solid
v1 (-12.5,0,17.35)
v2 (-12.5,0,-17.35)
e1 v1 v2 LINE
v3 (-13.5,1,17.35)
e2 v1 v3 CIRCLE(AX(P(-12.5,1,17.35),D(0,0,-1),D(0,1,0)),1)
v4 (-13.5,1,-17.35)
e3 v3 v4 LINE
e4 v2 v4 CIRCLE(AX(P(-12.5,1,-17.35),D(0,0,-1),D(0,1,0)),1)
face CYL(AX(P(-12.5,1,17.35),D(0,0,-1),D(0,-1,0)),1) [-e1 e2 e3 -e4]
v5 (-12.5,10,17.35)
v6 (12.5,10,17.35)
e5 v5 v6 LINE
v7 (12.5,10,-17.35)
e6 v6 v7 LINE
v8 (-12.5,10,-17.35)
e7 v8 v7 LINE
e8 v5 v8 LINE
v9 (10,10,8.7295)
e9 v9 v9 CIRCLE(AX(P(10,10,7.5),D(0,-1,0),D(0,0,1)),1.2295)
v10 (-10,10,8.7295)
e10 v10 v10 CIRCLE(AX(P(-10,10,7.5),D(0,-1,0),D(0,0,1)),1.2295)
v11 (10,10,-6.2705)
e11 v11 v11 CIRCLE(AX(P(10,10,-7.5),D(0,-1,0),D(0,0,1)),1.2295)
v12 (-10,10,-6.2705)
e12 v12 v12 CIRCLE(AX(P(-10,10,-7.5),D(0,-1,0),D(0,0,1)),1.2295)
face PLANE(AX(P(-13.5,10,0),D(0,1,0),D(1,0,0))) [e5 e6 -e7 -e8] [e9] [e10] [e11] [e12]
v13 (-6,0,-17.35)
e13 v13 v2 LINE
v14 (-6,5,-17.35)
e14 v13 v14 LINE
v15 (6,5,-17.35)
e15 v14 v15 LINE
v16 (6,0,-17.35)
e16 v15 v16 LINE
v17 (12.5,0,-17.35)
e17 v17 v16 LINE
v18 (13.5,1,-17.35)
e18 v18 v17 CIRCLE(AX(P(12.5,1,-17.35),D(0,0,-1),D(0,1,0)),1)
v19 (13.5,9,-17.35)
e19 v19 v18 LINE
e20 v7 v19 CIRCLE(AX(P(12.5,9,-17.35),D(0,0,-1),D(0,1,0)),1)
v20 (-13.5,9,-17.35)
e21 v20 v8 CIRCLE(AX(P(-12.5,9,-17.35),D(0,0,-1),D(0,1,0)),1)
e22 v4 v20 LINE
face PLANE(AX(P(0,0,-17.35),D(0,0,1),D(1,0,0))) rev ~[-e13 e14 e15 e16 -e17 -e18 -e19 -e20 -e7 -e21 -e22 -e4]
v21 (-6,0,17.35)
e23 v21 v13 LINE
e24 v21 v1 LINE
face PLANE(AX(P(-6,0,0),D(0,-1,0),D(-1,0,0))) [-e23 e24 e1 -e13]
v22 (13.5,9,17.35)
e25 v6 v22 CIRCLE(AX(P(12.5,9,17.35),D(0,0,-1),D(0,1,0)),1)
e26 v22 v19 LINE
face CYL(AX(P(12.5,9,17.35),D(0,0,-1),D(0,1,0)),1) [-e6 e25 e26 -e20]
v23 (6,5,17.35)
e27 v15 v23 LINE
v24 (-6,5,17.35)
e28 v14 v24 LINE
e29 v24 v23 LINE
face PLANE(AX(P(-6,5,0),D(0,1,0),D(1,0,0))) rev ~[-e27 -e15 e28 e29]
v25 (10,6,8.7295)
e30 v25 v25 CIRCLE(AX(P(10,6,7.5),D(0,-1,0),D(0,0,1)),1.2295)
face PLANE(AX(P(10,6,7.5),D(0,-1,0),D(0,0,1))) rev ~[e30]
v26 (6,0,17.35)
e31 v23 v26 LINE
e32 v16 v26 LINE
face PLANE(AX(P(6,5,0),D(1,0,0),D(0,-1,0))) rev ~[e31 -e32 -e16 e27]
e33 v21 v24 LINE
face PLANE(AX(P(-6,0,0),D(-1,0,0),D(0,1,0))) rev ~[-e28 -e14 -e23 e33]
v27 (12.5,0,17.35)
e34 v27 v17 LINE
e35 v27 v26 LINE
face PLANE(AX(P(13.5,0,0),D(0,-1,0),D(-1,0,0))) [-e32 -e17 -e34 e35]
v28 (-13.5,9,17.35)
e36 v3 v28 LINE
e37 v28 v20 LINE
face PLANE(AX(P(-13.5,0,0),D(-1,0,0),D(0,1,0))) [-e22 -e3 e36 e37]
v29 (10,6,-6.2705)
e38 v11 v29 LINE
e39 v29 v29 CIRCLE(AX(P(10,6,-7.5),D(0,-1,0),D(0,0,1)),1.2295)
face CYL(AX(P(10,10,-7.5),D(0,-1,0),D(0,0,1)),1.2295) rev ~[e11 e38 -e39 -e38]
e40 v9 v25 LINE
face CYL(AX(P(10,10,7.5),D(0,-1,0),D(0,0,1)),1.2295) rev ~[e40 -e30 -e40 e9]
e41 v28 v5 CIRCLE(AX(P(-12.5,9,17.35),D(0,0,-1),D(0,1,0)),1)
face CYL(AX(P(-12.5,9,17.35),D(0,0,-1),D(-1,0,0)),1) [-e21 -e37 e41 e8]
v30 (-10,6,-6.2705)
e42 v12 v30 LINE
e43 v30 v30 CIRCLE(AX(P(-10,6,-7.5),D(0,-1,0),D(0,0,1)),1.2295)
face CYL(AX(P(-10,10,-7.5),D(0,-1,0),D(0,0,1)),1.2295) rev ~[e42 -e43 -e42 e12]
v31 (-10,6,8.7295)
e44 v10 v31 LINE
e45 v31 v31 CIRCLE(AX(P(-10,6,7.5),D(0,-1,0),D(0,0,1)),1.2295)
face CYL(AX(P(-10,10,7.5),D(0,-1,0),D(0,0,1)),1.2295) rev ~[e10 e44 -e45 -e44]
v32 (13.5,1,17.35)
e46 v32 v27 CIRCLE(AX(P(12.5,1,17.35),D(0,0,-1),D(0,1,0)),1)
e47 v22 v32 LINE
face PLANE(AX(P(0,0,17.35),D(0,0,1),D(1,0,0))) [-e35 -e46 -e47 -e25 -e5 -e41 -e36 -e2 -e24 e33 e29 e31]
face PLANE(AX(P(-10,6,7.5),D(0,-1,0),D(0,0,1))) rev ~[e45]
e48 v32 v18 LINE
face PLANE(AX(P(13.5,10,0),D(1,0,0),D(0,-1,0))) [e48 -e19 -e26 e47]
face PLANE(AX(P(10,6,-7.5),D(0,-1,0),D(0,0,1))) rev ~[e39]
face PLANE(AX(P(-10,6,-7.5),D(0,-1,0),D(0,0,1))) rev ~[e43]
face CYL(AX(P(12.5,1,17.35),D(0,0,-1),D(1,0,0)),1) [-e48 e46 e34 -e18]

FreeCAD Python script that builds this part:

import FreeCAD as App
import Part
import Sketcher
from FreeCAD import Vector
Q = App.Units.Quantity


def edges_at(feature, points):
    """Names of the edges that pass closest to the given points."""
    edges = feature.Shape.Edges
    near = lambda p: min(range(len(edges)), key=lambda i: edges[i].distToShape(Part.Vertex(*p))[0])
    return sorted({f"Edge{near(p) + 1}" for p in points})


def add_polygon(sketch, points):
    """Adds a closed chain of lines whose ends are joined by coincident constraints."""
    first, n = sketch.GeometryCount, len(points)
    for a, b in zip(points, points[1:] + points[:1]):
        sketch.addGeometry(Part.LineSegment(App.Vector(*a, 0), App.Vector(*b, 0)), False)
    for i in range(n):
        sketch.addConstraint(Sketcher.Constraint("Coincident", first + i, 2, first + (i + 1) % n, 1))

doc = App.newDocument("Part")
body = doc.addObject("PartDesign::Body", "Body")

sketch1 = body.newObject("Sketcher::SketchObject", "Sketch")
sketch1.AttachmentSupport = (doc.getObject("XY_Plane"), [""])
sketch1.MapMode = "FlatFace"
add_polygon(sketch1, [(-6, 0), (-6, 5), (6, 5), (6, 0), (14, 0), (14, 10), (-14, 10), (-14, 0)])
sketch1.addConstraint(Sketcher.Constraint("Vertical", 0))
sketch1.addConstraint(Sketcher.Constraint("Horizontal", 1))
sketch1.addConstraint(Sketcher.Constraint("Vertical", 2))
sketch1.addConstraint(Sketcher.Constraint("Horizontal", 3))
sketch1.addConstraint(Sketcher.Constraint("Vertical", 4))
sketch1.addConstraint(Sketcher.Constraint("Horizontal", 5))
sketch1.addConstraint(Sketcher.Constraint("Vertical", 6))
sketch1.addConstraint(Sketcher.Constraint("Horizontal", 7))
sketch1.addConstraint(Sketcher.Constraint("Symmetric", 3, 2, 6, 2, -1, 1))
sketch1.addConstraint(Sketcher.Constraint("Symmetric", 2, 2, 7, 2, -2))
sketch1.addConstraint(Sketcher.Constraint("DistanceX", 1, 1, 1, 2, Q("12 mm")))
sketch1.addConstraint(Sketcher.Constraint("DistanceX", 5, 2, 5, 1, Q("27 mm")))
sketch1.addConstraint(Sketcher.Constraint("DistanceY", 0, 1, 0, 2, Q("5 mm")))
sketch1.addConstraint(Sketcher.Constraint("DistanceY", 4, 1, 4, 2, Q("10 mm")))
pad1 = body.newObject("PartDesign::Pad", "Pad")
pad1.Profile = sketch1
pad1.Length = 34.7
pad1.Midplane = True

sketch2 = body.newObject("Sketcher::SketchObject", "Sketch001")
sketch2.AttachmentSupport = (doc.getObject("XZ_Plane"), [""])
sketch2.MapMode = "FlatFace"
sketch2.AttachmentOffset = App.Placement(Vector(0, 0, -10), App.Rotation())
sketch2.addGeometry(Part.Circle(Vector(-10, 7.5, 0), Vector(0, 0, 1), 1.2), False)
sketch2.addGeometry(Part.Circle(Vector(10, 7.5, 0), Vector(0, 0, 1), 1.2), False)
sketch2.addGeometry(Part.Circle(Vector(10, -7.5, 0), Vector(0, 0, 1), 1.2), False)
sketch2.addGeometry(Part.Circle(Vector(-10, -7.5, 0), Vector(0, 0, 1), 1.2), False)
sketch2.addConstraint(Sketcher.Constraint("Equal", 0, 1))
sketch2.addConstraint(Sketcher.Constraint("Equal", 1, 2))
sketch2.addConstraint(Sketcher.Constraint("Equal", 2, 3))
sketch2.addConstraint(Sketcher.Constraint("Symmetric", 0, 3, 2, 3, -1, 1))
sketch2.addConstraint(Sketcher.Constraint("Symmetric", 1, 3, 3, 3, -1, 1))
sketch2.addConstraint(Sketcher.Constraint("Symmetric", 0, 3, 1, 3, -2))
sketch2.addConstraint(Sketcher.Constraint("Diameter", 0, Q("2.459 mm")))
sketch2.addConstraint(Sketcher.Constraint("DistanceX", 0, 3, -1, 1, Q("10 mm")))
sketch2.addConstraint(Sketcher.Constraint("DistanceY", 2, 3, 1, 3, Q("15 mm")))
doc.recompute()
hole = body.newObject("PartDesign::Hole", "Hole")
hole.Profile = sketch2
hole.ThreadType = "None"
hole.Diameter = 2.459
hole.DepthType = "Dimension"
hole.Depth = 4
hole.DrillPoint = "Flat"
hole.Reversed = True
doc.recompute()

fillet = body.newObject("PartDesign::Fillet", "Fillet")
fillet.Base = (hole, edges_at(hole, [
    (13.5, 10, 0),
    (-13.5, 10, 0),
    (13.5, 0, 0),
    (-13.5, 0, 0),
]))
fillet.Radius = 1

doc.recompute()
